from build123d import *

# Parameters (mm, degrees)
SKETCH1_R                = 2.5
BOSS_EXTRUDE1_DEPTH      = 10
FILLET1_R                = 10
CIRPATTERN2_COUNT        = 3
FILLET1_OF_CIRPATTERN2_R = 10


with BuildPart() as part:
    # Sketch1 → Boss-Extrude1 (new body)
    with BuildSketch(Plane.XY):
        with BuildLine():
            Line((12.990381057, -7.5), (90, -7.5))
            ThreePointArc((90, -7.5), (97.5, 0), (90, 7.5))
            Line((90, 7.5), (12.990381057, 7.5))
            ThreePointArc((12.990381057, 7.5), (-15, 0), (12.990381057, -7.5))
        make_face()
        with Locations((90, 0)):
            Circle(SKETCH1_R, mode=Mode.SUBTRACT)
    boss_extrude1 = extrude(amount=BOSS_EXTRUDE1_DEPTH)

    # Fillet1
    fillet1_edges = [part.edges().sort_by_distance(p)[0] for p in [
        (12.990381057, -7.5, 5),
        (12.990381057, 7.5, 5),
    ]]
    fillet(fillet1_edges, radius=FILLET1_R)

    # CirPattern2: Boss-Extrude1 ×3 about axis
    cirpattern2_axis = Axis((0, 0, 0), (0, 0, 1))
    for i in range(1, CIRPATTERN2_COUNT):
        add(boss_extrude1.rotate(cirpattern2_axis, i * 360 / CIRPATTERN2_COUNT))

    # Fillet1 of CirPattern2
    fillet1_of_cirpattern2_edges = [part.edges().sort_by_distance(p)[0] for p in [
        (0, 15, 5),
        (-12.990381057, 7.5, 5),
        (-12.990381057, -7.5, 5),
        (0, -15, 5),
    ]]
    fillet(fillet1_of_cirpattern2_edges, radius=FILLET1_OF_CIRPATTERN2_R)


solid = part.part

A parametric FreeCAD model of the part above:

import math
import FreeCAD as App
import Part
import Sketcher
from FreeCAD import Vector


def edges_at(feature, points):
    """Names of the edges that pass closest to the given points."""
    edges = feature.Shape.Edges
    near = lambda p: min(range(len(edges)), key=lambda i: edges[i].distToShape(Part.Vertex(*p))[0])
    return sorted({f"Edge{near(p) + 1}" for p in points})

doc = App.newDocument("Part")
body = doc.addObject("PartDesign::Body", "Body")

# Sketch on XY plane
sketch1 = body.newObject("Sketcher::SketchObject", "Sketch")
sketch1.AttachmentSupport = (doc.getObject("XY_Plane"), [""])
sketch1.MapMode = "FlatFace"
sketch1.addGeometry([
    Part.LineSegment(Vector(13, -7.5, 0), Vector(90, -7.5, 0)),  # 0
    Part.ArcOfCircle(Part.Circle(Vector(90, 0, 0), Vector(0, 0, 1), 7.5), math.radians(-90), math.radians(90)),  # 1
    Part.LineSegment(Vector(90, 7.5, 0), Vector(13, 7.5, 0)),  # 2
    Part.ArcOfCircle(Part.Circle(Vector(0, 0, 0), Vector(0, 0, 1), 15), math.radians(30), math.radians(330)),  # 3
    Part.Circle(Vector(90, 0, 0), Vector(0, 0, 1), 2.5),  # 4
], False)
sketch1.addConstraint([
    Sketcher.Constraint("Tangent", 0, 2, 1, 1),
    Sketcher.Constraint("Tangent", 1, 2, 2, 1),
    Sketcher.Constraint("Coincident", 2, 2, 3, 1),
    Sketcher.Constraint("Coincident", 3, 2, 0, 1),
    Sketcher.Constraint("Horizontal", 0),
    Sketcher.Constraint("Horizontal", 2),
    Sketcher.Constraint("Coincident", 3, 3, -1, 1),
    Sketcher.Constraint("Coincident", 4, 3, 1, 3),
    Sketcher.Constraint("PointOnObject", 1, 3, -1),
    Sketcher.Constraint("Diameter", 4, 5.0),
    Sketcher.Constraint("Radius", 3, 15.0),
    Sketcher.Constraint("Radius", 1, 7.5),
    Sketcher.Constraint("DistanceX", -1, 1, 1, 3, 90.0),
])
pad1 = body.newObject("PartDesign::Pad", "Pad")
pad1.Profile = sketch1
pad1.Length = 10
doc.recompute()

fillet = body.newObject("PartDesign::Fillet", "Fillet")
fillet.Base = (pad1, edges_at(pad1, [(12.99, -7.5, 5), (12.99, 7.5, 5)]))
fillet.Radius = 10
doc.recompute()

polarpattern = body.newObject("PartDesign::PolarPattern", "PolarPattern")
polarpattern.Originals = [pad1]
polarpattern.Axis = (doc.getObject("Z_Axis"), [""])
polarpattern.Angle = 360
polarpattern.Occurrences = 3
body.Tip = polarpattern
doc.recompute()

fillet2 = body.newObject("PartDesign::Fillet", "Fillet001")
fillet2.Base = (polarpattern, edges_at(polarpattern, [
    (0, 15, 5),
    (-12.99, 7.5, 5),
    (-12.99, -7.5, 5),
    (0, -15, 5),
]))
fillet2.Radius = 10

doc.recompute()
